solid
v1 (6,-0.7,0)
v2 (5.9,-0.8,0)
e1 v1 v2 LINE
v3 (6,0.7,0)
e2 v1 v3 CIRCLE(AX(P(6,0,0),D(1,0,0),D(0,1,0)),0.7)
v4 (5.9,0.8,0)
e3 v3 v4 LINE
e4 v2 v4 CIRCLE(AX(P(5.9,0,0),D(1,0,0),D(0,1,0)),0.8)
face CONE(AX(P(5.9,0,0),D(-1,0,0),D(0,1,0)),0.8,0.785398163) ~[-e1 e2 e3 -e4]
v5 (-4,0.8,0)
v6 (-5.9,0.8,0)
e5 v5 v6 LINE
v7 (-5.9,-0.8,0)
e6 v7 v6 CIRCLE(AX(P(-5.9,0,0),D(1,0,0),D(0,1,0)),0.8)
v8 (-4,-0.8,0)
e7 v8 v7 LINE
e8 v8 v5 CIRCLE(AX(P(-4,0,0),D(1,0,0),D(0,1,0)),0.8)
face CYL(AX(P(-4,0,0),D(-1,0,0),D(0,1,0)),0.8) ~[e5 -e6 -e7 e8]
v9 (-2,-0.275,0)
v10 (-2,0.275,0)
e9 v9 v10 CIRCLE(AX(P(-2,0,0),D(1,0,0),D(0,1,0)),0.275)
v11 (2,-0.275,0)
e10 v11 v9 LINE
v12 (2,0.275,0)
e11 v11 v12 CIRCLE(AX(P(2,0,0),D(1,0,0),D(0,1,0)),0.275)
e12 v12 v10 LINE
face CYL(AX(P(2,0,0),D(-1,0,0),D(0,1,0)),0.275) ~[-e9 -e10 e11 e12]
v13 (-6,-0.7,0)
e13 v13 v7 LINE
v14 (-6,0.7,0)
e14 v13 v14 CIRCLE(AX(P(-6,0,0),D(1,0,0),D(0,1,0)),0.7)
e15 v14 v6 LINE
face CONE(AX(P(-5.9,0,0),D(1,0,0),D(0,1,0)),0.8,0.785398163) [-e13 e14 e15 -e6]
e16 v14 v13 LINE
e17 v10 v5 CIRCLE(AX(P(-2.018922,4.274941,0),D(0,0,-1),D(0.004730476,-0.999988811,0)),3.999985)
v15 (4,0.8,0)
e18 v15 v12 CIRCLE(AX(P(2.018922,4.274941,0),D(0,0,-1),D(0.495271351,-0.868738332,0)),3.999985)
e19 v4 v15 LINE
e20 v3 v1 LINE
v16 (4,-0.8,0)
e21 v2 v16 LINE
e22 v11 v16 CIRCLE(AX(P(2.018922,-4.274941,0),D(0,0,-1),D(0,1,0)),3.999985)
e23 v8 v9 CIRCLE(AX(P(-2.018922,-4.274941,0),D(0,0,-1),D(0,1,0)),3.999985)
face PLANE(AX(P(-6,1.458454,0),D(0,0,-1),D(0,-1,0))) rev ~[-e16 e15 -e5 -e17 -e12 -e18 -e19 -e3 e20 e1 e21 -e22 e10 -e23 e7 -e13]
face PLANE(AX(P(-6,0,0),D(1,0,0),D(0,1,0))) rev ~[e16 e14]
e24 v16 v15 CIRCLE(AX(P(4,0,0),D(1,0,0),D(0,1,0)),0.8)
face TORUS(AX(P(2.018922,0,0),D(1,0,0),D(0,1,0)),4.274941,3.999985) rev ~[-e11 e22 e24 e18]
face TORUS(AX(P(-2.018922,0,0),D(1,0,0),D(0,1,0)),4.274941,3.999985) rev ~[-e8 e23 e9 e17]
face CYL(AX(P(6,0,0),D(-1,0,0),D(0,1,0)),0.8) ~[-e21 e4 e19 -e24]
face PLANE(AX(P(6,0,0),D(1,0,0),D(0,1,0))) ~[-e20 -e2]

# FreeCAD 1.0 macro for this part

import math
import FreeCAD as App
import Part
import Sketcher

V = App.Vector


def edges_at(feature, points):
    """Names of the edges that pass closest to the given points."""
    edges = feature.Shape.Edges
    near = lambda p: min(range(len(edges)), key=lambda i: edges[i].distToShape(Part.Vertex(*p))[0])
    return sorted({f"Edge{near(p) + 1}" for p in points})


def add_polygon(sketch, points):
    """Adds a closed chain of lines whose ends are joined by coincident constraints."""
    first, n = sketch.GeometryCount, len(points)
    for a, b in zip(points, points[1:] + points[:1]):
        sketch.addGeometry(Part.LineSegment(App.Vector(*a, 0), App.Vector(*b, 0)), False)
    for i in range(n):
        sketch.addConstraint(Sketcher.Constraint("Coincident", first + i, 2, first + (i + 1) % n, 1))

doc = App.newDocument("Part")
body = doc.addObject("PartDesign::Body", "Body")

sketch1 = body.newObject("Sketcher::SketchObject", "Sketch")
sketch1.AttachmentSupport = (doc.getObject("XY_Plane"), [""])
sketch1.MapMode = "FlatFace"
sketch1.addGeometry(Part.LineSegment(V(-6, 0.8, 0), V(-6, 0, 0)), False)
sketch1.addGeometry(Part.LineSegment(V(-6, 0, 0), V(6, 0, 0)), False)
sketch1.addGeometry(Part.LineSegment(V(6, 0, 0), V(6, 0.8, 0)), False)
sketch1.addGeometry(Part.LineSegment(V(6, 0.8, 0), V(4, 0.8, 0)), False)
sketch1.addGeometry(Part.ArcOfCircle(Part.Circle(V(2.018922, 4.274941, 0), V(0, 0, 1), 3.999985), math.radians(-90.271037), math.radians(-60.312355)), False)
sketch1.addGeometry(Part.LineSegment(V(2, 0.275, 0), V(-2, 0.275, 0)), False)
sketch1.addGeometry(Part.ArcOfCircle(Part.Circle(V(-2.018922, 4.274941, 0), V(0, 0, 1), 3.999985), math.radians(-119.687645), math.radians(-89.728963)), False)
sketch1.addGeometry(Part.LineSegment(V(-4, 0.8, 0), V(-6, 0.8, 0)), False)
sketch1.addConstraint(Sketcher.Constraint("Coincident", 0, 2, 1, 1))
sketch1.addConstraint(Sketcher.Constraint("Coincident", 1, 2, 2, 1))
sketch1.addConstraint(Sketcher.Constraint("Coincident", 2, 2, 3, 1))
sketch1.addConstraint(Sketcher.Constraint("Coincident", 3, 2, 4, 2))
sketch1.addConstraint(Sketcher.Constraint("Coincident", 4, 1, 5, 1))
sketch1.addConstraint(Sketcher.Constraint("Coincident", 5, 2, 6, 2))
sketch1.addConstraint(Sketcher.Constraint("Coincident", 6, 1, 7, 1))
sketch1.addConstraint(Sketcher.Constraint("Coincident", 7, 2, 0, 1))
sketch1.addConstraint(Sketcher.Constraint("Vertical", 0))
sketch1.addConstraint(Sketcher.Constraint("Horizontal", 1))
sketch1.addConstraint(Sketcher.Constraint("Vertical", 2))
sketch1.addConstraint(Sketcher.Constraint("Horizontal", 3))
sketch1.addConstraint(Sketcher.Constraint("Horizontal", 5))
sketch1.addConstraint(Sketcher.Constraint("Horizontal", 7))
sketch1.addConstraint(Sketcher.Constraint("Equal", 4, 6))
sketch1.addConstraint(Sketcher.Constraint("Symmetric", 0, 2, 1, 2, -1, 1))
sketch1.addConstraint(Sketcher.Constraint("Symmetric", 4, 3, 6, 3, -2))
sketch1.addConstraint(Sketcher.Constraint("Horizontal", 3, 2, 6, 1))
sketch1.addConstraint(Sketcher.Constraint("DistanceX", 1, 1, 1, 2, 12.0))
sketch1.addConstraint(Sketcher.Constraint("DistanceX", 3, 2, 3, 1, 2.0))
sketch1.addConstraint(Sketcher.Constraint("DistanceX", 5, 2, 5, 1, 4.0))
sketch1.addConstraint(Sketcher.Constraint("DistanceY", 0, 2, 0, 1, 0.8))
sketch1.addConstraint(Sketcher.Constraint("DistanceY", -1, 1, 4, 1, 0.275))
sketch1.addConstraint(Sketcher.Constraint("Radius", 4, 3.999985))
revolution = body.newObject("PartDesign::Revolution", "Revolution")
revolution.Profile = sketch1
revolution.ReferenceAxis = (sketch1, ["H_Axis"])
revolution.Angle = 360
doc.recompute()

chamfer = body.newObject("PartDesign::Chamfer", "Chamfer")
chamfer.Base = (revolution, edges_at(revolution, [(-6, -0.8, 0), (6, -0.8, 0)]))
chamfer.Size = 0.1

sketch2 = body.newObject("Sketcher::SketchObject", "Sketch001")
sketch2.AttachmentSupport = (doc.getObject("YZ_Plane"), [""])
sketch2.MapMode = "FlatFace"
sketch2.AttachmentOffset = App.Placement(V(0, 0, -6), App.Rotation())
add_polygon(sketch2, [(1.458454, 1.124954), (1.458454, 0), (-0.936052, 0), (-0.936052, 1.124954)])
sketch2.addConstraint(Sketcher.Constraint("Vertical", 0))
sketch2.addConstraint(Sketcher.Constraint("Horizontal", 1))
sketch2.addConstraint(Sketcher.Constraint("Vertical", 2))
sketch2.addConstraint(Sketcher.Constraint("Horizontal", 3))
sketch2.addConstraint(Sketcher.Constraint("PointOnObject", 0, 2, -1))
sketch2.addConstraint(Sketcher.Constraint("DistanceX", 1, 2, 1, 1, 2.394506))
sketch2.addConstraint(Sketcher.Constraint("DistanceY", 0, 2, 0, 1, 1.124954))
sketch2.addConstraint(Sketcher.Constraint("DistanceX", 1, 2, -1, 1, 0.936052))
pocket1 = body.newObject("PartDesign::Pocket", "Pocket")
pocket1.Profile = sketch2
pocket1.Type = "ThroughAll"
pocket1.Reversed = True

doc.recompute()
